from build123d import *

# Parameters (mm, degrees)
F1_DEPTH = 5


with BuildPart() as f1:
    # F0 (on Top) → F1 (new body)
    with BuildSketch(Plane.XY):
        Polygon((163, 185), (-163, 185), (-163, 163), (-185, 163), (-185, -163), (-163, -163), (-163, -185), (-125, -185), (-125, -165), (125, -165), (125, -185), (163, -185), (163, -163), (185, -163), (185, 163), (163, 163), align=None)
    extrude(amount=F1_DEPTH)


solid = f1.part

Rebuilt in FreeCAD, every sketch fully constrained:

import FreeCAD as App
import Part
import Sketcher
Q = App.Units.Quantity

doc = App.newDocument("Part")
body = doc.addObject("PartDesign::Body", "Body")

# Sketch on XY plane
sketch1 = body.newObject("Sketcher::SketchObject", "Sketch")
sketch1.AttachmentSupport = (doc.getObject("XY_Plane"), [""])
sketch1.MapMode = "FlatFace"
sketch1.addGeometry([
    Part.LineSegment(App.Vector(163, 185, 0), App.Vector(-163, 185, 0)),  # 0
    Part.LineSegment(App.Vector(-163, 185, 0), App.Vector(-163, 163, 0)),  # 1
    Part.LineSegment(App.Vector(-163, 163, 0), App.Vector(-185, 163, 0)),  # 2
    Part.LineSegment(App.Vector(-185, 163, 0), App.Vector(-185, -163, 0)),  # 3
    Part.LineSegment(App.Vector(-185, -163, 0), App.Vector(-163, -163, 0)),  # 4
    Part.LineSegment(App.Vector(-163, -163, 0), App.Vector(-163, -185, 0)),  # 5
    Part.LineSegment(App.Vector(-163, -185, 0), App.Vector(-125, -185, 0)),  # 6
    Part.LineSegment(App.Vector(-125, -185, 0), App.Vector(-125, -165, 0)),  # 7
    Part.LineSegment(App.Vector(-125, -165, 0), App.Vector(125, -165, 0)),  # 8
    Part.LineSegment(App.Vector(125, -165, 0), App.Vector(125, -185, 0)),  # 9
    Part.LineSegment(App.Vector(125, -185, 0), App.Vector(163, -185, 0)),  # 10
    Part.LineSegment(App.Vector(163, -185, 0), App.Vector(163, -163, 0)),  # 11
    Part.LineSegment(App.Vector(163, -163, 0), App.Vector(185, -163, 0)),  # 12
    Part.LineSegment(App.Vector(185, -163, 0), App.Vector(185, 163, 0)),  # 13
    Part.LineSegment(App.Vector(185, 163, 0), App.Vector(163, 163, 0)),  # 14
    Part.LineSegment(App.Vector(163, 163, 0), App.Vector(163, 185, 0)),  # 15
], False)
sketch1.addConstraint([
    Sketcher.Constraint("Coincident", 0, 2, 1, 1),
    Sketcher.Constraint("Coincident", 1, 2, 2, 1),
    Sketcher.Constraint("Coincident", 2, 2, 3, 1),
    Sketcher.Constraint("Coincident", 3, 2, 4, 1),
    Sketcher.Constraint("Coincident", 4, 2, 5, 1),
    Sketcher.Constraint("Coincident", 5, 2, 6, 1),
    Sketcher.Constraint("Coincident", 6, 2, 7, 1),
    Sketcher.Constraint("Coincident", 7, 2, 8, 1),
    Sketcher.Constraint("Coincident", 8, 2, 9, 1),
    Sketcher.Constraint("Coincident", 9, 2, 10, 1),
    Sketcher.Constraint("Coincident", 10, 2, 11, 1),
    Sketcher.Constraint("Coincident", 11, 2, 12, 1),
    Sketcher.Constraint("Coincident", 12, 2, 13, 1),
    Sketcher.Constraint("Coincident", 13, 2, 14, 1),
    Sketcher.Constraint("Coincident", 14, 2, 15, 1),
    Sketcher.Constraint("Coincident", 15, 2, 0, 1),
    Sketcher.Constraint("Horizontal", 0),
    Sketcher.Constraint("Vertical", 1),
    Sketcher.Constraint("Horizontal", 2),
    Sketcher.Constraint("Vertical", 3),
    Sketcher.Constraint("Horizontal", 4),
    Sketcher.Constraint("Vertical", 5),
    Sketcher.Constraint("Horizontal", 6),
    Sketcher.Constraint("Vertical", 7),
    Sketcher.Constraint("Horizontal", 8),
    Sketcher.Constraint("Vertical", 9),
    Sketcher.Constraint("Horizontal", 10),
    Sketcher.Constraint("Vertical", 11),
    Sketcher.Constraint("Horizontal", 12),
    Sketcher.Constraint("Vertical", 13),
    Sketcher.Constraint("Horizontal", 14),
    Sketcher.Constraint("Vertical", 15),
    Sketcher.Constraint("Symmetric", 0, 2, 10, 2, -1, 1),
    Sketcher.Constraint("Symmetric", 2, 2, 12, 2, -1, 1),
    Sketcher.Constraint("Symmetric", 4, 2, 14, 2, -1, 1),
    Sketcher.Constraint("Symmetric", 6, 2, 9, 2, -2),
    Sketcher.Constraint("Symmetric", 4, 2, 11, 2, -2),
    Sketcher.Constraint("Equal", 14, 1),
    Sketcher.Constraint("Equal", 0, 3),
    Sketcher.Constraint("DistanceX", 0, 2, 0, 1, Q("326 mm")),
    Sketcher.Constraint("DistanceX", 2, 2, 2, 1, Q("22 mm")),
    Sketcher.Constraint("DistanceX", 6, 1, 6, 2, Q("38 mm")),
    Sketcher.Constraint("DistanceY", 7, 1, 7, 2, Q("20 mm")),
])
pad1 = body.newObject("PartDesign::Pad", "Pad")
pad1.Profile = sketch1
pad1.Length = 5

doc.recompute()
